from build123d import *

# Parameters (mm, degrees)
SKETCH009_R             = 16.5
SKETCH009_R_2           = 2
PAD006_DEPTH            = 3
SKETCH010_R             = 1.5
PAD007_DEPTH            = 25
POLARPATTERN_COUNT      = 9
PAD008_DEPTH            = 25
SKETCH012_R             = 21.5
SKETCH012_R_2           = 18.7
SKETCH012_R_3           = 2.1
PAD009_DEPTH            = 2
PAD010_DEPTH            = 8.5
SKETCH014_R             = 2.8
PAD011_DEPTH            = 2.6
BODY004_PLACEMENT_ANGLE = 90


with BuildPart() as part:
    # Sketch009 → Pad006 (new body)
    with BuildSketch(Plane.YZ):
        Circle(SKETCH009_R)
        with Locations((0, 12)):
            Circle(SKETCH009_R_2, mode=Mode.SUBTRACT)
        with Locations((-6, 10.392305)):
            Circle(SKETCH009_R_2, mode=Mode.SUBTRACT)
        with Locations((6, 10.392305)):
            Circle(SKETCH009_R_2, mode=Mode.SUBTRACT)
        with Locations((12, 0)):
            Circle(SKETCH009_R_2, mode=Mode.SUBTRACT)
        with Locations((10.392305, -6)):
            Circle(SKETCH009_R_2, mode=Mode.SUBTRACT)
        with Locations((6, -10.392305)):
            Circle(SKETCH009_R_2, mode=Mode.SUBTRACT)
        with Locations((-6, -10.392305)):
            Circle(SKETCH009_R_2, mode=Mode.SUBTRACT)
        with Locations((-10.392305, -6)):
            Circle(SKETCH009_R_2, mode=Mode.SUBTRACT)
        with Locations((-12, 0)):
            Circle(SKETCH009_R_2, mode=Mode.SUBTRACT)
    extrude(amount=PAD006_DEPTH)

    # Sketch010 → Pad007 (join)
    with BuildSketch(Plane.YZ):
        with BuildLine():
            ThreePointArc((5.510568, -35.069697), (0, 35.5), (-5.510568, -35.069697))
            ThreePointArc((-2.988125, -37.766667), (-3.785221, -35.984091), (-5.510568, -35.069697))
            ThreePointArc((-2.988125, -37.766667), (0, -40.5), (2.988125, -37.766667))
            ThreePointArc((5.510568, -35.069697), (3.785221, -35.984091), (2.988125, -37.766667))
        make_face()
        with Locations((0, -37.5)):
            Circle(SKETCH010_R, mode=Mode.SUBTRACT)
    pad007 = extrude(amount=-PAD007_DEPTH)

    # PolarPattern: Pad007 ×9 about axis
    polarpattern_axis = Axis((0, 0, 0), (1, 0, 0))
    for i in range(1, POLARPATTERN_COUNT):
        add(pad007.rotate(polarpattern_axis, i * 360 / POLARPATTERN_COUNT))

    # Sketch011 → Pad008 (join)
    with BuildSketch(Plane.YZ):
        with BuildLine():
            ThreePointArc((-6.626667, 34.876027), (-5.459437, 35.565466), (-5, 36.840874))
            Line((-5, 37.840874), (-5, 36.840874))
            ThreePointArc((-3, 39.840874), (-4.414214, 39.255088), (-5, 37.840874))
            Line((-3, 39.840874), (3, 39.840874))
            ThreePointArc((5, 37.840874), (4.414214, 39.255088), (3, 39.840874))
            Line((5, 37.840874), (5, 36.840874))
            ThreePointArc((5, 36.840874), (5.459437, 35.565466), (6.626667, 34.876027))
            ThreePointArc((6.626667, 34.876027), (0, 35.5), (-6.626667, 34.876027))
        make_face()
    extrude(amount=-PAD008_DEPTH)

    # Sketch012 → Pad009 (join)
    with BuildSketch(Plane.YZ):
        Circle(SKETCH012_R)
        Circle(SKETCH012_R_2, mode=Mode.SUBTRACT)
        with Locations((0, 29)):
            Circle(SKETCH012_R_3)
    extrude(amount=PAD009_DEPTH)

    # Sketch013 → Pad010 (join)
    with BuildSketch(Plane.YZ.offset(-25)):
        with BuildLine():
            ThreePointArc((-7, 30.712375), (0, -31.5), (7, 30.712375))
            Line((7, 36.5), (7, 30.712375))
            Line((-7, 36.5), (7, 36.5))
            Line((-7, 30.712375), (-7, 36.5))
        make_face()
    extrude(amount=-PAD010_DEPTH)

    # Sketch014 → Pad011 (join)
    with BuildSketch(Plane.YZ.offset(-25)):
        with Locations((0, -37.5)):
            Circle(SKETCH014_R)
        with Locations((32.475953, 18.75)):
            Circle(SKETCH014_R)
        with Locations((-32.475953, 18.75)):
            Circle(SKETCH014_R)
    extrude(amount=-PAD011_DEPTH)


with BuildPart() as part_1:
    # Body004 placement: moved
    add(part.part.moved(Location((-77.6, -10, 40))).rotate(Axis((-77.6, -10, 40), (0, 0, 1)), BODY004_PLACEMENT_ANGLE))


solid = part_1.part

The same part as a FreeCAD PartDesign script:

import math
import FreeCAD as App
import Part
import Sketcher

V = App.Vector

doc = App.newDocument("Part")
body = doc.addObject("PartDesign::Body", "Body")

sketch1 = body.newObject("Sketcher::SketchObject", "Sketch")
sketch1.AttachmentSupport = (doc.getObject("YZ_Plane"), [""])
sketch1.MapMode = "FlatFace"
sketch1.addGeometry([
    Part.Circle(V(0, 0, 0), V(0, 0, 1), 16.5),
    Part.Circle(V(-10.392305, -6, 0), V(0, 0, 1), 2),
    Part.Circle(V(-6, -10.392305, 0), V(0, 0, 1), 2),
    Part.Circle(V(-12, 0, 0), V(0, 0, 1), 2),
    Part.Circle(V(6, -10.392305, 0), V(0, 0, 1), 2),
    Part.Circle(V(10.392305, -6, 0), V(0, 0, 1), 2),
    Part.Circle(V(12, 0, 0), V(0, 0, 1), 2),
    Part.Circle(V(-6, 10.392305, 0), V(0, 0, 1), 2),
    Part.Circle(V(6, 10.392305, 0), V(0, 0, 1), 2),
    Part.Circle(V(0, 12, 0), V(0, 0, 1), 2),
], False)
sketch1.addConstraint([
    Sketcher.Constraint("Coincident", 0, 3, -1, 1),
    Sketcher.Constraint("Equal", 1, 2),
    Sketcher.Constraint("Equal", 2, 3),
    Sketcher.Constraint("Equal", 3, 4),
    Sketcher.Constraint("Equal", 4, 5),
    Sketcher.Constraint("Equal", 5, 6),
    Sketcher.Constraint("Equal", 6, 7),
    Sketcher.Constraint("Equal", 7, 8),
    Sketcher.Constraint("Equal", 8, 9),
    Sketcher.Constraint("Symmetric", 3, 3, 6, 3, -1, 1),
    Sketcher.Constraint("Symmetric", 4, 3, 7, 3, -1, 1),
    Sketcher.Constraint("Symmetric", 2, 3, 8, 3, -1, 1),
    Sketcher.Constraint("Symmetric", 2, 3, 4, 3, -2),
    Sketcher.Constraint("Symmetric", 1, 3, 5, 3, -2),
    Sketcher.Constraint("PointOnObject", 3, 3, -1),
    Sketcher.Constraint("PointOnObject", 9, 3, -2),
    Sketcher.Constraint("Diameter", 0, 33.0),
    Sketcher.Constraint("Diameter", 1, 4.0),
    Sketcher.Constraint("DistanceY", 1, 3, -1, 1, 6.0),
    Sketcher.Constraint("DistanceX", 2, 3, -1, 1, 6.0),
    Sketcher.Constraint("DistanceX", 3, 3, -1, 1, 12.0),
    Sketcher.Constraint("DistanceY", -1, 1, 9, 3, 12.0),
    Sketcher.Constraint("DistanceX", 1, 3, 5, 3, 20.78461),
    Sketcher.Constraint("DistanceY", 2, 3, 7, 3, 20.78461),
])
pad1 = body.newObject("PartDesign::Pad", "Pad")
pad1.Profile = sketch1
pad1.Length = 3

sketch2 = body.newObject("Sketcher::SketchObject", "Sketch001")
sketch2.AttachmentSupport = (doc.getObject("YZ_Plane"), [""])
sketch2.MapMode = "FlatFace"
sketch2.addGeometry([
    Part.ArcOfCircle(Part.Circle(V(0, 0, 0), V(0, 0, 1), 35.5), math.radians(-81.070023), math.radians(261.070023)),
    Part.ArcOfCircle(Part.Circle(V(-5.976249, -38.033333, 0), V(0, 0, 1), 2.999999), math.radians(5.099675), math.radians(81.070034)),
    Part.ArcOfCircle(Part.Circle(V(0, -37.5, 0), V(0, 0, 1), 3), math.radians(-174.900297), math.radians(-5.099703)),
    Part.ArcOfCircle(Part.Circle(V(5.976249, -38.033333, 0), V(0, 0, 1), 2.999999), math.radians(98.929966), math.radians(174.900325)),
    Part.Circle(V(0, -37.5, 0), V(0, 0, 1), 1.5),
], False)
sketch2.addConstraint([
    Sketcher.Constraint("Tangent", 0, 2, 1, 2),
    Sketcher.Constraint("Tangent", 1, 1, 2, 1),
    Sketcher.Constraint("Tangent", 2, 2, 3, 2),
    Sketcher.Constraint("Tangent", 3, 1, 0, 1),
    Sketcher.Constraint("Coincident", 0, 3, -1, 1),
    Sketcher.Constraint("Coincident", 4, 3, 2, 3),
    Sketcher.Constraint("Equal", 1, 2),
    Sketcher.Constraint("Equal", 2, 3),
    Sketcher.Constraint("PointOnObject", 2, 3, -2),
    Sketcher.Constraint("Diameter", 4, 3.0),
    Sketcher.Constraint("Radius", 1, 2.999999),
    Sketcher.Constraint("Radius", 0, 35.5),
    Sketcher.Constraint("DistanceY", 2, 3, -1, 1, 37.5),
])
pad2 = body.newObject("PartDesign::Pad", "Pad001")
pad2.Profile = sketch2
pad2.Length = 25
pad2.Reversed = True
doc.recompute()

polarpattern = body.newObject("PartDesign::PolarPattern", "PolarPattern")
polarpattern.Originals = [pad2]
polarpattern.Axis = (doc.getObject("X_Axis"), [""])
polarpattern.Angle = 360
polarpattern.Occurrences = 9
body.Tip = polarpattern

sketch3 = body.newObject("Sketcher::SketchObject", "Sketch002")
sketch3.AttachmentSupport = (doc.getObject("YZ_Plane"), [""])
sketch3.MapMode = "FlatFace"
sketch3.addGeometry([
    Part.ArcOfCircle(Part.Circle(V(-7.000001, 36.840874, 0), V(0, 0, 1), 2.000001), math.radians(-79.241674), math.radians(-0.000009)),
    Part.ArcOfCircle(Part.Circle(V(0, 0.00002, 0), V(0, 0, 1), 35.49998), math.radians(79.241675), math.radians(100.758325)),
    Part.ArcOfCircle(Part.Circle(V(7.000001, 36.840874, 0), V(0, 0, 1), 2.000001), math.radians(-179.999991), math.radians(-100.758326)),
    Part.LineSegment(V(5, 36.840874, 0), V(5, 37.840874, 0)),
    Part.ArcOfCircle(Part.Circle(V(3.000001, 37.840875, 0), V(0, 0, 1), 1.999999), math.radians(-0.000043), math.radians(90.000043)),
    Part.LineSegment(V(3, 39.840874, 0), V(-3, 39.840874, 0)),
    Part.ArcOfCircle(Part.Circle(V(-3.000001, 37.840875, 0), V(0, 0, 1), 1.999999), math.radians(89.999957), math.radians(180.000043)),
    Part.LineSegment(V(-5, 37.840874, 0), V(-5, 36.840874, 0)),
], False)
sketch3.addConstraint([
    Sketcher.Constraint("Tangent", 0, 1, 1, 2),
    Sketcher.Constraint("Tangent", 1, 1, 2, 2),
    Sketcher.Constraint("Tangent", 2, 1, 3, 1),
    Sketcher.Constraint("Tangent", 3, 2, 4, 1),
    Sketcher.Constraint("Tangent", 4, 2, 5, 1),
    Sketcher.Constraint("Tangent", 5, 2, 6, 1),
    Sketcher.Constraint("Tangent", 6, 2, 7, 1),
    Sketcher.Constraint("Tangent", 7, 2, 0, 2),
    Sketcher.Constraint("Vertical", 3),
    Sketcher.Constraint("Horizontal", 5),
    Sketcher.Constraint("Vertical", 7),
    Sketcher.Constraint("Equal", 0, 2),
    Sketcher.Constraint("Equal", 4, 6),
    Sketcher.Constraint("Symmetric", 0, 3, 2, 3, -2),
    Sketcher.Constraint("Radius", 0, 2.000001),
    Sketcher.Constraint("Radius", 4, 1.999999),
    Sketcher.Constraint("DistanceX", 5, 2, 5, 1, 6.0),
    Sketcher.Constraint("DistanceY", 3, 1, 3, 2, 1.0),
    Sketcher.Constraint("Radius", 1, 35.49998),
    Sketcher.Constraint("DistanceY", -1, 1, 0, 3, 36.840874),
])
pad3 = body.newObject("PartDesign::Pad", "Pad002")
pad3.Profile = sketch3
pad3.Length = 25
pad3.Reversed = True

sketch4 = body.newObject("Sketcher::SketchObject", "Sketch003")
sketch4.AttachmentSupport = (doc.getObject("YZ_Plane"), [""])
sketch4.MapMode = "FlatFace"
sketch4.addGeometry([
    Part.Circle(V(0, 0, 0), V(0, 0, 1), 21.5),
    Part.Circle(V(0, 0, 0), V(0, 0, 1), 18.7),
    Part.Circle(V(0, 29, 0), V(0, 0, 1), 2.1),
], False)
sketch4.addConstraint([
    Sketcher.Constraint("Coincident", 0, 3, -1, 1),
    Sketcher.Constraint("Coincident", 1, 3, -1, 1),
    Sketcher.Constraint("PointOnObject", 2, 3, -2),
    Sketcher.Constraint("Diameter", 0, 43.0),
    Sketcher.Constraint("Diameter", 1, 37.4),
    Sketcher.Constraint("Diameter", 2, 4.2),
    Sketcher.Constraint("DistanceY", -1, 1, 2, 3, 29.0),
])
pad4 = body.newObject("PartDesign::Pad", "Pad003")
pad4.Profile = sketch4
pad4.Length = 2

sketch5 = body.newObject("Sketcher::SketchObject", "Sketch004")
sketch5.AttachmentSupport = (doc.getObject("YZ_Plane"), [""])
sketch5.MapMode = "FlatFace"
sketch5.AttachmentOffset = App.Placement(V(0, 0, -25), App.Rotation())
sketch5.addGeometry([
    Part.ArcOfCircle(Part.Circle(V(0, 0, 0), V(0, 0, 1), 31.5), math.radians(102.839588), math.radians(437.160412)),
    Part.LineSegment(V(7, 30.712375, 0), V(7, 36.5, 0)),
    Part.LineSegment(V(7, 36.5, 0), V(-7, 36.5, 0)),
    Part.LineSegment(V(-7, 36.5, 0), V(-7, 30.712375, 0)),
], False)
sketch5.addConstraint([
    Sketcher.Constraint("Coincident", 0, 2, 1, 1),
    Sketcher.Constraint("Coincident", 1, 2, 2, 1),
    Sketcher.Constraint("Coincident", 2, 2, 3, 1),
    Sketcher.Constraint("Coincident", 3, 2, 0, 1),
    Sketcher.Constraint("Vertical", 1),
    Sketcher.Constraint("Horizontal", 2),
    Sketcher.Constraint("Vertical", 3),
    Sketcher.Constraint("Coincident", 0, 3, -1, 1),
    Sketcher.Constraint("Horizontal", 0, 2, 3, 2),
    Sketcher.Constraint("Radius", 0, 31.5),
    Sketcher.Constraint("DistanceX", 2, 2, 2, 1, 14.0),
    Sketcher.Constraint("DistanceY", -1, 1, 1, 2, 36.5),
])
pad5 = body.newObject("PartDesign::Pad", "Pad004")
pad5.Profile = sketch5
pad5.Length = 8.5
pad5.Reversed = True

sketch6 = body.newObject("Sketcher::SketchObject", "Sketch005")
sketch6.AttachmentSupport = (doc.getObject("YZ_Plane"), [""])
sketch6.MapMode = "FlatFace"
sketch6.AttachmentOffset = App.Placement(V(0, 0, -25), App.Rotation())
sketch6.addGeometry([
    Part.Circle(V(0, -37.5, 0), V(0, 0, 1), 2.8),
    Part.Circle(V(32.475953, 18.75, 0), V(0, 0, 1), 2.8),
    Part.Circle(V(-32.475953, 18.75, 0), V(0, 0, 1), 2.8),
], False)
sketch6.addConstraint([
    Sketcher.Constraint("Equal", 0, 1),
    Sketcher.Constraint("Equal", 1, 2),
    Sketcher.Constraint("Symmetric", 1, 3, 2, 3, -2),
    Sketcher.Constraint("PointOnObject", 0, 3, -2),
    Sketcher.Constraint("Diameter", 0, 5.6),
    Sketcher.Constraint("DistanceY", 0, 3, -1, 1, 37.5),
    Sketcher.Constraint("DistanceY", -1, 1, 1, 3, 18.75),
    Sketcher.Constraint("DistanceX", -1, 1, 1, 3, 32.475953),
])
pad6 = body.newObject("PartDesign::Pad", "Pad005")
pad6.Profile = sketch6
pad6.Length = 2.6
pad6.Reversed = True
body2 = doc.addObject("PartDesign::Body", "Body001")
doc.recompute()

body.Placement = App.Placement(V(-77.6, -10, 40), App.Rotation(V(0, 0, 1), 90))
boolean = body2.newObject("PartDesign::Boolean", "Boolean")
boolean.Type = "Fuse"
boolean.addObjects([body])

doc.recompute()
